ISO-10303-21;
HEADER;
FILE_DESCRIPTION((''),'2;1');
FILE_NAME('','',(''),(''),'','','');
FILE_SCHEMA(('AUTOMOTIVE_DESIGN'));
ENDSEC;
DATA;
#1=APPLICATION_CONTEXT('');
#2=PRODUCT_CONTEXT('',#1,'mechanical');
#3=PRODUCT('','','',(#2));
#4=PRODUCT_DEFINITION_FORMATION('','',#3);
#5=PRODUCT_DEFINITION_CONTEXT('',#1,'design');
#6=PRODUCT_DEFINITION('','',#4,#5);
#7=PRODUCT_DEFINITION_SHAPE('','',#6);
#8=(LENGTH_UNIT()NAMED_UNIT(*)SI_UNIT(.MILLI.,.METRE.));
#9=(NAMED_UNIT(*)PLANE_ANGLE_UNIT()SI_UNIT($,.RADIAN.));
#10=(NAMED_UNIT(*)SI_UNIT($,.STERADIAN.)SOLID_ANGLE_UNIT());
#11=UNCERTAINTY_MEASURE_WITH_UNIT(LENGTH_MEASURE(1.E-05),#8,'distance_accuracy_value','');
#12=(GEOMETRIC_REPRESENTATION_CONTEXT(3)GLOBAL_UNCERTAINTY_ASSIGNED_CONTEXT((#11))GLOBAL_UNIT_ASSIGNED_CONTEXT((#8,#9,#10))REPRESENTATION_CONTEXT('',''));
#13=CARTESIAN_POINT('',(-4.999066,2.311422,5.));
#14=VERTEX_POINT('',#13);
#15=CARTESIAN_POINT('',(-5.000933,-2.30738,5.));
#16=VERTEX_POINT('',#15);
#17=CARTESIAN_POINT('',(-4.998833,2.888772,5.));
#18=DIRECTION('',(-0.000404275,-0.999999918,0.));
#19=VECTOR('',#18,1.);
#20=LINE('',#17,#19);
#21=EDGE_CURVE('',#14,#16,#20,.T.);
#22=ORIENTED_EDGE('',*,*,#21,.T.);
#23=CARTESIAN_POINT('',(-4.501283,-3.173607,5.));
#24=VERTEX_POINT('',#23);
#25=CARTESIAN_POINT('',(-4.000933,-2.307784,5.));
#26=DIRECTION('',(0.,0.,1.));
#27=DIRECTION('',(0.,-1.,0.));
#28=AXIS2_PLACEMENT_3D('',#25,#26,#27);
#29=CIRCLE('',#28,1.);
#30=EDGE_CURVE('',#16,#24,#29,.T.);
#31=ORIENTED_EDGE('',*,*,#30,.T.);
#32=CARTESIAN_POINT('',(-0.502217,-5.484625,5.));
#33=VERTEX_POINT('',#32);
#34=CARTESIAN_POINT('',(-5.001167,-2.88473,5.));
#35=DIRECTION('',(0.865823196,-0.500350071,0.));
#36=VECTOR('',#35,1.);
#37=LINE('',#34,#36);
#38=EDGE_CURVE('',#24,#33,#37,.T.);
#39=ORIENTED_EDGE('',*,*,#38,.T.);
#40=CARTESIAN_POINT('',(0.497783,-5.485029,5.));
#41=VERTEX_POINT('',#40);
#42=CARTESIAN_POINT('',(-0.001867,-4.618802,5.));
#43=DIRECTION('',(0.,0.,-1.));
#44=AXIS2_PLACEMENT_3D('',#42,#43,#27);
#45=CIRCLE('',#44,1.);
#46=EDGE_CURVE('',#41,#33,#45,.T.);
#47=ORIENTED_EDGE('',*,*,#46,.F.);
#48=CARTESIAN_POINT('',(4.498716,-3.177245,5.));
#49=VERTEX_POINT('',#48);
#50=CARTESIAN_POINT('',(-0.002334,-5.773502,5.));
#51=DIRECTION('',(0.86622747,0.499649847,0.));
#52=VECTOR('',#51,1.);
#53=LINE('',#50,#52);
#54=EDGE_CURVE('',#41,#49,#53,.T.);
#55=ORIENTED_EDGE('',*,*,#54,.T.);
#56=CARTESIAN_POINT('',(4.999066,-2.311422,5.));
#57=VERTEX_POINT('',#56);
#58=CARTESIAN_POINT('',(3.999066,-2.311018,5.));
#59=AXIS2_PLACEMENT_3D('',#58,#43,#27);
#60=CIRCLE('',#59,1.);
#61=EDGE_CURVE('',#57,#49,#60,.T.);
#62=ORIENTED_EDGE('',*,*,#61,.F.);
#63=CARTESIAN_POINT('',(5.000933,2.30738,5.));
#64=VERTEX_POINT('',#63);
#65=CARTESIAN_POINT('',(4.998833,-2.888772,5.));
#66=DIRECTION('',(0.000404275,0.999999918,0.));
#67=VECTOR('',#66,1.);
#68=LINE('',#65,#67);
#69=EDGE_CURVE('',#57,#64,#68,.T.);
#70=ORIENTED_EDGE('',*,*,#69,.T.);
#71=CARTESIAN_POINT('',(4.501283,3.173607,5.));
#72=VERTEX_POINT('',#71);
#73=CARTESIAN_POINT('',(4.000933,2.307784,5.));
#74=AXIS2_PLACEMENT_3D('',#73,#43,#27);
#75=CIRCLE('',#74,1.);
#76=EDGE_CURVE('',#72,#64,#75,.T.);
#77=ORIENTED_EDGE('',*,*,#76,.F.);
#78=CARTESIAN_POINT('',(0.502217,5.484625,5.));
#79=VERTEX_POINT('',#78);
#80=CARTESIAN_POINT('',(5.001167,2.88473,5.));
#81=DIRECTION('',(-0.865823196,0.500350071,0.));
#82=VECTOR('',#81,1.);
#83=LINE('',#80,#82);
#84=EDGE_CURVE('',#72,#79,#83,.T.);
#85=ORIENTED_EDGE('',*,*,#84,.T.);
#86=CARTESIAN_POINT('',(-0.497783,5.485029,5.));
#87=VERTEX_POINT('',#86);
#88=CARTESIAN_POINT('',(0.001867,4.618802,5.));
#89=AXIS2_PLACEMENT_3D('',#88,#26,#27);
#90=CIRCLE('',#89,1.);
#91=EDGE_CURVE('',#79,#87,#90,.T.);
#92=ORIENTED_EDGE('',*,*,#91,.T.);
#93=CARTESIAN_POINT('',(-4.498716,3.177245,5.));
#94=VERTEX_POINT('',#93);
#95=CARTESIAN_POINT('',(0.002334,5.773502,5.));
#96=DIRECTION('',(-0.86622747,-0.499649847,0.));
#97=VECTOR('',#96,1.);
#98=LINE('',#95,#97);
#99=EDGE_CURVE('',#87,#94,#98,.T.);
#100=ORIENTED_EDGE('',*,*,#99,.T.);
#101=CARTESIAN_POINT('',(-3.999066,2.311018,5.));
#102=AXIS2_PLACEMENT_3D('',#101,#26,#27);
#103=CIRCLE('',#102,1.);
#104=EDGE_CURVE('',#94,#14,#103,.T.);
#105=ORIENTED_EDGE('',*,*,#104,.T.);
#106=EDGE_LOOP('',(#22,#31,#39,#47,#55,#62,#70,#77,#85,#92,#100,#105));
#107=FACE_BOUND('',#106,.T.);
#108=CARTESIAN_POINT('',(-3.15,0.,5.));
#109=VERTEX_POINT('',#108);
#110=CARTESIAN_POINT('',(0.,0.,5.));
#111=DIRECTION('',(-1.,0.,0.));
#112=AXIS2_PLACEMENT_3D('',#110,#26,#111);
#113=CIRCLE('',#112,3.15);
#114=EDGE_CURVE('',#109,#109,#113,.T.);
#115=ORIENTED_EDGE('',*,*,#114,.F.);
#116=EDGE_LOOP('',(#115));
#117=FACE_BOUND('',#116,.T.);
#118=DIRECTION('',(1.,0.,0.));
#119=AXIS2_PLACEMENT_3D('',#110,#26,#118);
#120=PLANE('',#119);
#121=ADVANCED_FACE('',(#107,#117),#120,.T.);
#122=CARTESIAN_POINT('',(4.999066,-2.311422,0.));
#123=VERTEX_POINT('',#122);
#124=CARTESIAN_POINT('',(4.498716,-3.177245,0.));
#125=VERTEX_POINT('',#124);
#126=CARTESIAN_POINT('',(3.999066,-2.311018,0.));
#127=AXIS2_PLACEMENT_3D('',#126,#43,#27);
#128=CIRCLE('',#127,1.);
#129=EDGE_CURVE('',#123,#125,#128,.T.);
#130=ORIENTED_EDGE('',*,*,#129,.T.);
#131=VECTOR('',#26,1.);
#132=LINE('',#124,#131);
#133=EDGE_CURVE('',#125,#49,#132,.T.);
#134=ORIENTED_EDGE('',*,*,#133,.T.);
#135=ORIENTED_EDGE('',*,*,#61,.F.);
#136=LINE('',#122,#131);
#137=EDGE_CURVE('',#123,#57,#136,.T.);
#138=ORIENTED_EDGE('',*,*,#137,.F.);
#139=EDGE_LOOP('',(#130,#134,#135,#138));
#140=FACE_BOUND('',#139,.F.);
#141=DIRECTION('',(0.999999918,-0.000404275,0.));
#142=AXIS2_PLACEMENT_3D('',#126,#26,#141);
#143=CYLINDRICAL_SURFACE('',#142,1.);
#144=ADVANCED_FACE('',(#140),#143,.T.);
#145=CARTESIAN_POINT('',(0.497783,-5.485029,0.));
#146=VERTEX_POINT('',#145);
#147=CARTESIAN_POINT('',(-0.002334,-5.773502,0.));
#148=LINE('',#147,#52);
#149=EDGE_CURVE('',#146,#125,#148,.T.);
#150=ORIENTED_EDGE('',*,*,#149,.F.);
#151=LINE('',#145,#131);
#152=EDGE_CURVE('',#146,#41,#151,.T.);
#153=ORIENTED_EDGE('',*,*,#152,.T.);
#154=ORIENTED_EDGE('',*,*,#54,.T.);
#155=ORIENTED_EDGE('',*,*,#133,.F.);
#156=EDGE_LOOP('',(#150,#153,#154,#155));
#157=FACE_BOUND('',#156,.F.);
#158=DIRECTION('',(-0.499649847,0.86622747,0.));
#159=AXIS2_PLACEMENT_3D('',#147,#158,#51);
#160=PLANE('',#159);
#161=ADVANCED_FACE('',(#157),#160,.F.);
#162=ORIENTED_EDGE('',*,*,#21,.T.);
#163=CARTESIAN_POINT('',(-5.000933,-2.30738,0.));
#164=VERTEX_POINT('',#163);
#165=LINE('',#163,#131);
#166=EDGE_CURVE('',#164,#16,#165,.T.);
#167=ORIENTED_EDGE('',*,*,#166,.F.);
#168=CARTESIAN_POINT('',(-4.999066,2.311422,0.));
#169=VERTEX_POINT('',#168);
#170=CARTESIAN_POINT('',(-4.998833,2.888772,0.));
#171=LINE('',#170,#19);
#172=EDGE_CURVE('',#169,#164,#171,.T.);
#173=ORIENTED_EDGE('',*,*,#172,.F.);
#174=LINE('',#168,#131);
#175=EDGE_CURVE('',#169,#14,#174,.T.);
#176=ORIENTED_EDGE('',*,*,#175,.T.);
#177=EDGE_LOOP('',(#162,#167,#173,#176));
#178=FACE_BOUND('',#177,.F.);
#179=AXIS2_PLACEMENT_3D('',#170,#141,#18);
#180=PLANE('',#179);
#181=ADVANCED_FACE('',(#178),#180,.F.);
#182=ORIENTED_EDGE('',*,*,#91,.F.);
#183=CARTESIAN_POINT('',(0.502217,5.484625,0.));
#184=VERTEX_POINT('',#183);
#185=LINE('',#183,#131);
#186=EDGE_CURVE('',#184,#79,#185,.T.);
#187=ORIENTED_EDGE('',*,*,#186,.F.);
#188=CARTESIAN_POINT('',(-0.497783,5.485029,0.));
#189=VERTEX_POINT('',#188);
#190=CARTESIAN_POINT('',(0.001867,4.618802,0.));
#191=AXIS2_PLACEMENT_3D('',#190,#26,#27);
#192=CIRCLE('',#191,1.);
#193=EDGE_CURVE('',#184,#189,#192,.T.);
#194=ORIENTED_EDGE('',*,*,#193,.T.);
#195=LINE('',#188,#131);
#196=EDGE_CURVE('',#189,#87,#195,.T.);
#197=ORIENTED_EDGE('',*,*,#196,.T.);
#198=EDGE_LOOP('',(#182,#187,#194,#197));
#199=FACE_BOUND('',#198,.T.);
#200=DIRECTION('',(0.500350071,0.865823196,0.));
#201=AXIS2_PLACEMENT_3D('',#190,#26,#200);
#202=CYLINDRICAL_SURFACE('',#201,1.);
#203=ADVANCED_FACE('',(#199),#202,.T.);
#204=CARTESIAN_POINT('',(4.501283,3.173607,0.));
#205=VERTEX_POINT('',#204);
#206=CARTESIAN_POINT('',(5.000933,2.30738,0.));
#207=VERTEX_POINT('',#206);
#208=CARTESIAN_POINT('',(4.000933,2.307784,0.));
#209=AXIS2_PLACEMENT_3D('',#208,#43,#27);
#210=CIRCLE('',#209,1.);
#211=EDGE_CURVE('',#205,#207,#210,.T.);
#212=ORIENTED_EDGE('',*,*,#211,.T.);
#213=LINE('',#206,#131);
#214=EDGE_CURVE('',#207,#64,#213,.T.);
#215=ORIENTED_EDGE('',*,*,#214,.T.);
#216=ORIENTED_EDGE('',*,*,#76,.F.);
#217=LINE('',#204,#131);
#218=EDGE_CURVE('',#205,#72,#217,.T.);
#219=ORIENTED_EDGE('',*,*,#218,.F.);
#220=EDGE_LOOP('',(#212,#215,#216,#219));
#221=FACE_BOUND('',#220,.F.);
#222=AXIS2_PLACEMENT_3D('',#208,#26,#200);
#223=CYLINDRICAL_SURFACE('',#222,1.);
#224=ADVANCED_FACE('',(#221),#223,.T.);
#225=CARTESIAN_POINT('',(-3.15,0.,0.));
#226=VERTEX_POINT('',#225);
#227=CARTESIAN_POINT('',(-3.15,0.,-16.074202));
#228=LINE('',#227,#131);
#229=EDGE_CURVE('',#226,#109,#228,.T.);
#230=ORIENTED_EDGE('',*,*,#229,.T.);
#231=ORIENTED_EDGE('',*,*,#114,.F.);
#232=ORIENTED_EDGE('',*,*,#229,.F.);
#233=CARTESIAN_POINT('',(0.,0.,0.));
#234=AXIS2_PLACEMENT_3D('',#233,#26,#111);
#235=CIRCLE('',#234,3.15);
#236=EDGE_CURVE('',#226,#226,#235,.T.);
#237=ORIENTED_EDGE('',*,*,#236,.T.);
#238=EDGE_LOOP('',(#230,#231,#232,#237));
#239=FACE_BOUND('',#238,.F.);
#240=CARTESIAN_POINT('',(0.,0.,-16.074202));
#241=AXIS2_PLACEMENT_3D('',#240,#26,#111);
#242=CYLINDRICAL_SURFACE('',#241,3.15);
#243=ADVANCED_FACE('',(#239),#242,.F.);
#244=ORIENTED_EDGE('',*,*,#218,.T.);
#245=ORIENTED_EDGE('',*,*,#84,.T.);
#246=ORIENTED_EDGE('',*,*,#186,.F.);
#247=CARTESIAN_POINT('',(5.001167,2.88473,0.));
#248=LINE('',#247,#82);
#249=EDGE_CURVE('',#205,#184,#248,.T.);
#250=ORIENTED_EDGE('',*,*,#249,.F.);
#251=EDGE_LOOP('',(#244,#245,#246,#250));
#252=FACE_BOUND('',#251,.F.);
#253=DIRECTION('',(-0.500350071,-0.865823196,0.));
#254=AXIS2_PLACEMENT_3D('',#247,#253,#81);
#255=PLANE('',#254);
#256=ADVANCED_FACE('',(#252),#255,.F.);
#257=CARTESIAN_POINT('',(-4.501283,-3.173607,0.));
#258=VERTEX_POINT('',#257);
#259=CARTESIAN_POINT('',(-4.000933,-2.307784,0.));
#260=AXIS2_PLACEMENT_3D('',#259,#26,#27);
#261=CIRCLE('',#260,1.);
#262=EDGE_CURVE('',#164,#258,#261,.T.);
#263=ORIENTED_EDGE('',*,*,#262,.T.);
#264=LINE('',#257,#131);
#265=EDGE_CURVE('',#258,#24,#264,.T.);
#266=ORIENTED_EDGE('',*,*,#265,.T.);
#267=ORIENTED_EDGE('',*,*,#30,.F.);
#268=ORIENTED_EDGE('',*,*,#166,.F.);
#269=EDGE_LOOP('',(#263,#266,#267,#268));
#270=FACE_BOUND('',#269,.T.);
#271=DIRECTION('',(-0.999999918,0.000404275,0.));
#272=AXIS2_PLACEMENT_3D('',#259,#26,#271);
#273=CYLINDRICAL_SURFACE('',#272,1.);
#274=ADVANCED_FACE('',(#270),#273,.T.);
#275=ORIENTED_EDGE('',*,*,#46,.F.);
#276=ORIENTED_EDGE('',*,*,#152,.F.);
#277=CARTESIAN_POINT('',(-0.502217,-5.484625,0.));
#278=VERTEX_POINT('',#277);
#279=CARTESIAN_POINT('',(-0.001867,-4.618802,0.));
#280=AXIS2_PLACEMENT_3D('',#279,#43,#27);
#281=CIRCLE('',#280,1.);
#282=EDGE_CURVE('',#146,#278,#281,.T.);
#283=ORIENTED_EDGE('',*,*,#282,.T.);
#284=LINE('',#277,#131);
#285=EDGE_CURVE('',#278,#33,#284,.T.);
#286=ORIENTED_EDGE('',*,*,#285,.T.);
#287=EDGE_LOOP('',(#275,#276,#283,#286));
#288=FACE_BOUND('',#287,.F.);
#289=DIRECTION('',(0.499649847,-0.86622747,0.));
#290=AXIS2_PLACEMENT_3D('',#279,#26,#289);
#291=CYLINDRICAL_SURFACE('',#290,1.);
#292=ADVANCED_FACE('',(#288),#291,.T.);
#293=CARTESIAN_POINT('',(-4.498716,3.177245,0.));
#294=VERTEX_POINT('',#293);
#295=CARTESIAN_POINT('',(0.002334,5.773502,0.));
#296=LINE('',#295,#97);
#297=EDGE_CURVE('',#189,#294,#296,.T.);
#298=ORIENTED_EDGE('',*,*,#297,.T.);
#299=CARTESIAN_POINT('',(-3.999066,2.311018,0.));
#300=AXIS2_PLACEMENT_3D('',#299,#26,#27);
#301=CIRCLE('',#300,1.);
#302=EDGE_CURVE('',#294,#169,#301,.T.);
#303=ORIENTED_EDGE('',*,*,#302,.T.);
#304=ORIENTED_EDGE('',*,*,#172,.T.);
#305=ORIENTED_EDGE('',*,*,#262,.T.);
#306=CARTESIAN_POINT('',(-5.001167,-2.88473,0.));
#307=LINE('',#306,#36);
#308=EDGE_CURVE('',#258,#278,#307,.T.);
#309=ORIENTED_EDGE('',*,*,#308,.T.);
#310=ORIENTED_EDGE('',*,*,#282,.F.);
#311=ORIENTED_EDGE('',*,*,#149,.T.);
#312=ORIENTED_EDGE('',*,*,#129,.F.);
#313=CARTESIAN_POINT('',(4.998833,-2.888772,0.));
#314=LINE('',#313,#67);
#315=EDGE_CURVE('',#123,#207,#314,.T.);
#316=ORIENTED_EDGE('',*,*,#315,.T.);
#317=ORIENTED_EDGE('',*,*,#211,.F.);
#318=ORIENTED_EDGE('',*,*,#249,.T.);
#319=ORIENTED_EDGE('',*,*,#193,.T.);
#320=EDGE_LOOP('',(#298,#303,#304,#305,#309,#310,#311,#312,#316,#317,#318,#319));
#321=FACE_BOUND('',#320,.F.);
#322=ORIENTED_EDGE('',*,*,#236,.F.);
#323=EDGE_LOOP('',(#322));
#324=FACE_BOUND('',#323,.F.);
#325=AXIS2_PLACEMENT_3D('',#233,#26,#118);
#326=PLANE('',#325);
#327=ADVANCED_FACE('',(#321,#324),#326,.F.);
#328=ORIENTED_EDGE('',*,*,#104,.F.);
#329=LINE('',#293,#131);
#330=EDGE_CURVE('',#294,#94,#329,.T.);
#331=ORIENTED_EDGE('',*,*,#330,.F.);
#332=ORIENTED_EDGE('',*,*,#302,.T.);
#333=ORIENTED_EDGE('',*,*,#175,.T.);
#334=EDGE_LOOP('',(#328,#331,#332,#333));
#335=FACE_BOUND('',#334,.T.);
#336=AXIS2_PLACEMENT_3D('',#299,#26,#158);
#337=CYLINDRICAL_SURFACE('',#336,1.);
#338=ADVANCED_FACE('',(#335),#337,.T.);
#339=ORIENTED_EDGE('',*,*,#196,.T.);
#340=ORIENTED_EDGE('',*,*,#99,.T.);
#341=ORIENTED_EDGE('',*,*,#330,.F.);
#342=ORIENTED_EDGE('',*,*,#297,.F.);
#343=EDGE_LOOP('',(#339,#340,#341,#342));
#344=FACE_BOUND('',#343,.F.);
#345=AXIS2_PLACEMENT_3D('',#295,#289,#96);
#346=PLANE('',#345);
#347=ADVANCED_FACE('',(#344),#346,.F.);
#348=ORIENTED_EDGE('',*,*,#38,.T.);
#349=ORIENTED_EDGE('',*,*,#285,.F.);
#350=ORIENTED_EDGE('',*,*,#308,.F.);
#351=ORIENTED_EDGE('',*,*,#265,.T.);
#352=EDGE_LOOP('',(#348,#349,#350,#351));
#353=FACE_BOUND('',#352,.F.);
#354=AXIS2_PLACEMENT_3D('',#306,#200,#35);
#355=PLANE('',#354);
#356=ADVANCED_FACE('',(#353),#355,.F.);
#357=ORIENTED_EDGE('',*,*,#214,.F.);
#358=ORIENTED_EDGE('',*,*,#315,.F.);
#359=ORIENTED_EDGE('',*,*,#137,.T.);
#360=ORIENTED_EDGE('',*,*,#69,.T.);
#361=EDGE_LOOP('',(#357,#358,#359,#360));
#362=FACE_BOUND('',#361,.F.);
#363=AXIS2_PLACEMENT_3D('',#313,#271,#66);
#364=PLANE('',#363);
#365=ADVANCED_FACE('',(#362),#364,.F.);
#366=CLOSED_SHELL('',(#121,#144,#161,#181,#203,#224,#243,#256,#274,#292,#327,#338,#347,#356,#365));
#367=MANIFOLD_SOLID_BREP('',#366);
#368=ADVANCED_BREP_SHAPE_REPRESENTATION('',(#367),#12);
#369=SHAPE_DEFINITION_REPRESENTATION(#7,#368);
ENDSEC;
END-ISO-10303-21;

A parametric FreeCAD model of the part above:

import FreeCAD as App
import Part
import Sketcher

V = App.Vector


def edges_at(feature, points):
    """Names of the edges that pass closest to the given points."""
    edges = feature.Shape.Edges
    near = lambda p: min(range(len(edges)), key=lambda i: edges[i].distToShape(Part.Vertex(*p))[0])
    return sorted({f"Edge{near(p) + 1}" for p in points})

doc = App.newDocument("Part")
body = doc.addObject("PartDesign::Body", "Body")

sketch1 = body.newObject("Sketcher::SketchObject", "Sketch")
sketch1.AttachmentSupport = (doc.getObject("XY_Plane"), [""])
sketch1.MapMode = "FlatFace"
sketch1.addGeometry([
    Part.LineSegment(V(5, 3, 0), V(0, 6, 0)),
    Part.LineSegment(V(0, 6, 0), V(-5, 3, 0)),
    Part.LineSegment(V(-5, 3, 0), V(-5, -3, 0)),
    Part.LineSegment(V(-5, -3, 0), V(0, -6, 0)),
    Part.LineSegment(V(0, -6, 0), V(5, -3, 0)),
    Part.LineSegment(V(5, -3, 0), V(5, 3, 0)),
], False)
sketch1.addConstraint([
    Sketcher.Constraint("Coincident", 0, 2, 1, 1),
    Sketcher.Constraint("Coincident", 1, 2, 2, 1),
    Sketcher.Constraint("Coincident", 2, 2, 3, 1),
    Sketcher.Constraint("Coincident", 3, 2, 4, 1),
    Sketcher.Constraint("Coincident", 4, 2, 5, 1),
    Sketcher.Constraint("Coincident", 5, 2, 0, 1),
    Sketcher.Constraint("Symmetric", 0, 2, 3, 2, -1, 1),
    Sketcher.Constraint("Symmetric", 1, 2, 4, 2, -1, 1),
    Sketcher.Constraint("Symmetric", 2, 2, 5, 2, -1, 1),
    Sketcher.Constraint("Equal", 0, 1),
    Sketcher.Constraint("Equal", 1, 2),
    Sketcher.Constraint("DistanceX", 2, 2, 4, 2, 9.999999),
    Sketcher.Constraint("DistanceX", 2, 2, 0, 2, 5.003501),
    Sketcher.Constraint("DistanceY", 2, 2, -1, 1, 2.88473),
    Sketcher.Constraint("DistanceY", 1, 2, 0, 2, 2.88473),
])
pad1 = body.newObject("PartDesign::Pad", "Pad")
pad1.Profile = sketch1
pad1.Length = 5

sketch2 = body.newObject("Sketcher::SketchObject", "Sketch001")
sketch2.AttachmentSupport = (doc.getObject("XY_Plane"), [""])
sketch2.MapMode = "FlatFace"
sketch2.addGeometry(Part.Circle(V(0, 0, 0), V(0, 0, 1), 3.1), False)
sketch2.addConstraint([
    Sketcher.Constraint("Coincident", 0, 3, -1, 1),
    Sketcher.Constraint("Diameter", 0, 6.3),
])
doc.recompute()
hole = body.newObject("PartDesign::Hole", "Hole")
hole.Profile = sketch2
hole.ThreadType = "None"
hole.Diameter = 6.3
hole.DepthType = "ThroughAll"
hole.Reversed = True
doc.recompute()

fillet = body.newObject("PartDesign::Fillet", "Fillet")
fillet.Base = (hole, edges_at(hole, [
    (-0.002, -5.774, 2.5),
    (4.999, -2.889, 2.5),
    (5.001, 2.885, 2.5),
    (0.002, 5.774, 2.5),
    (-4.999, 2.889, 2.5),
    (-5.001, -2.885, 2.5),
]))
fillet.Radius = 1

doc.recompute()
